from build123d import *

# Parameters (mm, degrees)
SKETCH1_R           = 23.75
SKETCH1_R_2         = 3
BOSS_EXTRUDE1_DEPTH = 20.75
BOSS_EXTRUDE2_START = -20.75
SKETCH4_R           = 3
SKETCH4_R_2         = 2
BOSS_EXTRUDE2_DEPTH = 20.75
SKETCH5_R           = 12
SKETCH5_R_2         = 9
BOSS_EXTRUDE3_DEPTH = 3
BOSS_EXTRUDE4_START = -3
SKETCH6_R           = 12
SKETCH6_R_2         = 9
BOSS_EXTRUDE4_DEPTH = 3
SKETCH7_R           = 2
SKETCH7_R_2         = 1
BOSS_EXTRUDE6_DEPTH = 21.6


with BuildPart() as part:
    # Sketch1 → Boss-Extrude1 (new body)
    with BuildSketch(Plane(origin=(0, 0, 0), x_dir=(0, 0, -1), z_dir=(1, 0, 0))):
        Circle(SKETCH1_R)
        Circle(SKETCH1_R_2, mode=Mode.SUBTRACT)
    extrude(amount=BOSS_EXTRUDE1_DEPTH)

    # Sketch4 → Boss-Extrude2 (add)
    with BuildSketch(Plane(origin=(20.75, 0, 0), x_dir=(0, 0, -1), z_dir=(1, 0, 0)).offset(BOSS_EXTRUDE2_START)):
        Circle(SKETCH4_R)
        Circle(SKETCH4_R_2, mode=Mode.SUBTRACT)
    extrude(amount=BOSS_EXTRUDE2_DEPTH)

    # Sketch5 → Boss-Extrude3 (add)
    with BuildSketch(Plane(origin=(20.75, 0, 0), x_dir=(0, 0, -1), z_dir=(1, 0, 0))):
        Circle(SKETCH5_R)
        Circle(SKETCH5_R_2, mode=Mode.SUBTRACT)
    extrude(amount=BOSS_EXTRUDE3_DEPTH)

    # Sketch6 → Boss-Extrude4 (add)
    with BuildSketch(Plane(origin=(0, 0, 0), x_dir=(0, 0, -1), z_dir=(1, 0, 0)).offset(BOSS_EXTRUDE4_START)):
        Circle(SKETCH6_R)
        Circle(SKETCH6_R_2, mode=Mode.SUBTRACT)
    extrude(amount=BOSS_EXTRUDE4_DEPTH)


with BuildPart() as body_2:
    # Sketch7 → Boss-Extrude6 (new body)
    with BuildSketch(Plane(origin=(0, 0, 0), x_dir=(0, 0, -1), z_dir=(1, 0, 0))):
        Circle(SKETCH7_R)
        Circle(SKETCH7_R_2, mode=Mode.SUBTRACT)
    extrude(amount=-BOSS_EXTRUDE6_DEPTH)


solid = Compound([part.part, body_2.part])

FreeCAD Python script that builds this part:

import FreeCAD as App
import Part
import Sketcher

doc = App.newDocument("Part")
body = doc.addObject("PartDesign::Body", "Body")

sketch1 = body.newObject("Sketcher::SketchObject", "Sketch")
sketch1.AttachmentSupport = (doc.getObject("YZ_Plane"), [""])
sketch1.MapMode = "FlatFace"
sketch1.addGeometry(Part.Circle(App.Vector(0, 0, 0), App.Vector(0, 0, 1), 23.8), False)
sketch1.addGeometry(Part.Circle(App.Vector(0, 0, 0), App.Vector(0, 0, 1), 3), False)
sketch1.addConstraint(Sketcher.Constraint("Coincident", 0, 3, -1, 1))
sketch1.addConstraint(Sketcher.Constraint("Coincident", 1, 3, -1, 1))
sketch1.addConstraint(Sketcher.Constraint("Diameter", 1, 6.0))
sketch1.addConstraint(Sketcher.Constraint("Diameter", 0, 47.5))
pad1 = body.newObject("PartDesign::Pad", "Pad")
pad1.Profile = sketch1
pad1.Length = 20.75

sketch2 = body.newObject("Sketcher::SketchObject", "Sketch001")
sketch2.AttachmentSupport = (doc.getObject("YZ_Plane"), [""])
sketch2.MapMode = "FlatFace"
sketch2.addGeometry(Part.Circle(App.Vector(0, 0, 0), App.Vector(0, 0, 1), 3), False)
sketch2.addGeometry(Part.Circle(App.Vector(0, 0, 0), App.Vector(0, 0, 1), 2), False)
sketch2.addConstraint(Sketcher.Constraint("Coincident", 0, 3, -1, 1))
sketch2.addConstraint(Sketcher.Constraint("Coincident", 1, 3, -1, 1))
sketch2.addConstraint(Sketcher.Constraint("Diameter", 0, 6.0))
sketch2.addConstraint(Sketcher.Constraint("Diameter", 1, 4.0))
pad2 = body.newObject("PartDesign::Pad", "Pad001")
pad2.Profile = sketch2
pad2.Length = 20.75

sketch3 = body.newObject("Sketcher::SketchObject", "Sketch002")
sketch3.AttachmentSupport = (doc.getObject("YZ_Plane"), [""])
sketch3.MapMode = "FlatFace"
sketch3.AttachmentOffset = App.Placement(App.Vector(0, 0, 20.75), App.Rotation())
sketch3.addGeometry(Part.Circle(App.Vector(0, 0, 0), App.Vector(0, 0, 1), 12), False)
sketch3.addGeometry(Part.Circle(App.Vector(0, 0, 0), App.Vector(0, 0, 1), 9), False)
sketch3.addConstraint(Sketcher.Constraint("Coincident", 0, 3, -1, 1))
sketch3.addConstraint(Sketcher.Constraint("Coincident", 1, 3, -1, 1))
sketch3.addConstraint(Sketcher.Constraint("Diameter", 0, 24.0))
sketch3.addConstraint(Sketcher.Constraint("Diameter", 1, 18.0))
pad3 = body.newObject("PartDesign::Pad", "Pad002")
pad3.Profile = sketch3
pad3.Length = 3

sketch4 = body.newObject("Sketcher::SketchObject", "Sketch003")
sketch4.AttachmentSupport = (doc.getObject("YZ_Plane"), [""])
sketch4.MapMode = "FlatFace"
sketch4.AttachmentOffset = App.Placement(App.Vector(0, 0, -3), App.Rotation())
sketch4.addGeometry(Part.Circle(App.Vector(0, 0, 0), App.Vector(0, 0, 1), 12), False)
sketch4.addGeometry(Part.Circle(App.Vector(0, 0, 0), App.Vector(0, 0, 1), 9), False)
sketch4.addConstraint(Sketcher.Constraint("Coincident", 0, 3, -1, 1))
sketch4.addConstraint(Sketcher.Constraint("Coincident", 1, 3, -1, 1))
sketch4.addConstraint(Sketcher.Constraint("Diameter", 0, 24.0))
sketch4.addConstraint(Sketcher.Constraint("Diameter", 1, 18.0))
pad4 = body.newObject("PartDesign::Pad", "Pad003")
pad4.Profile = sketch4
pad4.Length = 3
body2 = doc.addObject("PartDesign::Body", "Body001")

sketch5 = body2.newObject("Sketcher::SketchObject", "Sketch004")
sketch5.AttachmentSupport = (doc.getObject("YZ_Plane001"), [""])
sketch5.MapMode = "FlatFace"
sketch5.addGeometry(Part.Circle(App.Vector(0, 0, 0), App.Vector(0, 0, 1), 2), False)
sketch5.addGeometry(Part.Circle(App.Vector(0, 0, 0), App.Vector(0, 0, 1), 1), False)
sketch5.addConstraint(Sketcher.Constraint("Coincident", 0, 3, -1, 1))
sketch5.addConstraint(Sketcher.Constraint("Coincident", 1, 3, -1, 1))
sketch5.addConstraint(Sketcher.Constraint("Diameter", 0, 4.0))
sketch5.addConstraint(Sketcher.Constraint("Diameter", 1, 2.0))
pad5 = body2.newObject("PartDesign::Pad", "Pad004")
pad5.Profile = sketch5
pad5.Length = 21.6
pad5.Reversed = True

doc.recompute()
